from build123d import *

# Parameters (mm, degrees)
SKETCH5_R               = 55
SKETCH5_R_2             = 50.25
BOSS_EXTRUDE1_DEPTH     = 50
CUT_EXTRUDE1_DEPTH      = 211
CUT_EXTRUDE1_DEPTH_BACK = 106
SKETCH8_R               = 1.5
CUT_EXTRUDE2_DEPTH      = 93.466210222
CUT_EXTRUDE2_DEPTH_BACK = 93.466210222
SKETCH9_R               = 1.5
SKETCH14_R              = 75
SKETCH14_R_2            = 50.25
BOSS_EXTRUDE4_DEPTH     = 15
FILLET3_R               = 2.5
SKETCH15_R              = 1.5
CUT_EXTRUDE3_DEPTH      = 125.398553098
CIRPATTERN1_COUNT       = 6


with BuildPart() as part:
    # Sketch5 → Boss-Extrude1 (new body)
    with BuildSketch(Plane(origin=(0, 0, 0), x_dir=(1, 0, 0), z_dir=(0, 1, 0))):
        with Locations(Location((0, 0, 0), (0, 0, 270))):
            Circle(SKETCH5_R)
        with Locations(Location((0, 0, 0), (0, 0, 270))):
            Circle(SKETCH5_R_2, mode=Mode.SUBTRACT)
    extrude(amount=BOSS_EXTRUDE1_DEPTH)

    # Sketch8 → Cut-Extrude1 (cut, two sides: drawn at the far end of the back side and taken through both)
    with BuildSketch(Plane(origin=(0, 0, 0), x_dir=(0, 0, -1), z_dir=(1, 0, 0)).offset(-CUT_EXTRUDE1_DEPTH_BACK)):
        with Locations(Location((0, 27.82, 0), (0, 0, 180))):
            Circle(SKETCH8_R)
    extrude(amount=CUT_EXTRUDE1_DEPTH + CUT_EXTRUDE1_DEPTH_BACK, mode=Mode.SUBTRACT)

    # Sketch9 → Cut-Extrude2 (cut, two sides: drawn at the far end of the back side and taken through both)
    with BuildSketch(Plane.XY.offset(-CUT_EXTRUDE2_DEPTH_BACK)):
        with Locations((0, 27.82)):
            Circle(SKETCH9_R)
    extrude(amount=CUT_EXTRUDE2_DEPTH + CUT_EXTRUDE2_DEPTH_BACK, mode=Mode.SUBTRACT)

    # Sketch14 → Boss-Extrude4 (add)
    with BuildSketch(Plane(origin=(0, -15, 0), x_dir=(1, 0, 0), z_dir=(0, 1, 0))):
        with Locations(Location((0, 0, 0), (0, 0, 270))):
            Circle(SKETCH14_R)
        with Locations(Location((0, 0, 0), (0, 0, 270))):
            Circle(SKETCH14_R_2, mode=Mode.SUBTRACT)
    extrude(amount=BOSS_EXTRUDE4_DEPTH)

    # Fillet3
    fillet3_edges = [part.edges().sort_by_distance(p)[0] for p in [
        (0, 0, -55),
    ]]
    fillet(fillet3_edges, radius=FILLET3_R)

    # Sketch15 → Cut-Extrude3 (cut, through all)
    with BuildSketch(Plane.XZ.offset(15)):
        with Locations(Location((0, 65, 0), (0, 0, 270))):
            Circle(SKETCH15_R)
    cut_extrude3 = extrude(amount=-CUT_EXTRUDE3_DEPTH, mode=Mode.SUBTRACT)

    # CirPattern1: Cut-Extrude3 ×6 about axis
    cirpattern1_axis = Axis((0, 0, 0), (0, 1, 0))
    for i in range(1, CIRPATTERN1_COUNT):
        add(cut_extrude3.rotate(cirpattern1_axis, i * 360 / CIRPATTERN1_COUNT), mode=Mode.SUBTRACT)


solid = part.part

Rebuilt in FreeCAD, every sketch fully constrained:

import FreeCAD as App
import Part
import Sketcher

V = App.Vector
Q = App.Units.Quantity


def edges_at(feature, points):
    """Names of the edges that pass closest to the given points."""
    edges = feature.Shape.Edges
    near = lambda p: min(range(len(edges)), key=lambda i: edges[i].distToShape(Part.Vertex(*p))[0])
    return sorted({f"Edge{near(p) + 1}" for p in points})

doc = App.newDocument("Part")
params = doc.addObject("Spreadsheet::Sheet", "Params")
for row, (alias, value) in enumerate([
    ("sketch1_diameter", "110 mm"),
    ("sketch1_diameter2", "100.5 mm"),
    ("pad1_length", "50 mm"),
    ("sketch2_diameter", "3 mm"),
    ("sketch3_diameter", "3 mm"),
    ("sketch4_diameter", "150 mm"),
    ("sketch4_diameter2", "100.5 mm"),
    ("pad2_length", "15 mm"),
    ("fillet_radius", "2.5 mm"),
    ("sketch5_diameter", "3 mm"),
], start=1):
    params.set(f"A{row}", alias)
    params.set(f"B{row}", "=" + value)
    params.setAlias(f"B{row}", alias)

body = doc.addObject("PartDesign::Body", "Body")

# Sketch on XZ plane
sketch1 = body.newObject("Sketcher::SketchObject", "Sketch")
sketch1.AttachmentSupport = (doc.getObject("XZ_Plane"), [""])
sketch1.MapMode = "FlatFace"
sketch1.addGeometry(Part.Circle(V(0, 0, 0), V(0, 0, 1), 55), False)
sketch1.addGeometry(Part.Circle(V(0, 0, 0), V(0, 0, 1), 50), False)
sketch1.addConstraint(Sketcher.Constraint("Coincident", 0, 3, -1, 1))
sketch1.addConstraint(Sketcher.Constraint("Coincident", 1, 3, -1, 1))
sketch1.addConstraint(Sketcher.Constraint("Diameter", 0, Q("110 mm")))
sketch1.addConstraint(Sketcher.Constraint("Diameter", 1, Q("100.5 mm")))
sketch1.setExpression("Constraints[2]", "Params.sketch1_diameter")
sketch1.setExpression("Constraints[3]", "Params.sketch1_diameter2")
pad1 = body.newObject("PartDesign::Pad", "Pad")
pad1.Profile = sketch1
pad1.setExpression("Length", "Params.pad1_length")
pad1.Reversed = True

# Sketch on YZ plane
sketch2 = body.newObject("Sketcher::SketchObject", "Sketch001")
sketch2.AttachmentSupport = (doc.getObject("YZ_Plane"), [""])
sketch2.MapMode = "FlatFace"
sketch2.addGeometry(Part.Circle(V(27.8, 0, 0), V(0, 0, 1), 1.5), False)
sketch2.addConstraint(Sketcher.Constraint("PointOnObject", 0, 3, -1))
sketch2.addConstraint(Sketcher.Constraint("Diameter", 0, Q("3 mm")))
sketch2.addConstraint(Sketcher.Constraint("DistanceX", -1, 1, 0, 3, Q("27.82 mm")))
sketch2.setExpression("Constraints[1]", "Params.sketch2_diameter")
pocket1 = body.newObject("PartDesign::Pocket", "Pocket")
pocket1.Profile = sketch2
pocket1.Type = "ThroughAll"
pocket1.Midplane = True

# Sketch on XY plane
sketch3 = body.newObject("Sketcher::SketchObject", "Sketch002")
sketch3.AttachmentSupport = (doc.getObject("XY_Plane"), [""])
sketch3.MapMode = "FlatFace"
sketch3.addGeometry(Part.Circle(V(0, 27.8, 0), V(0, 0, 1), 1.5), False)
sketch3.addConstraint(Sketcher.Constraint("PointOnObject", 0, 3, -2))
sketch3.addConstraint(Sketcher.Constraint("Diameter", 0, Q("3 mm")))
sketch3.addConstraint(Sketcher.Constraint("DistanceY", -1, 1, 0, 3, Q("27.82 mm")))
sketch3.setExpression("Constraints[1]", "Params.sketch3_diameter")
pocket2 = body.newObject("PartDesign::Pocket", "Pocket001")
pocket2.Profile = sketch3
pocket2.Type = "ThroughAll"
pocket2.Midplane = True

# Sketch on XZ plane
sketch4 = body.newObject("Sketcher::SketchObject", "Sketch003")
sketch4.AttachmentSupport = (doc.getObject("XZ_Plane"), [""])
sketch4.MapMode = "FlatFace"
sketch4.AttachmentOffset = App.Placement(V(0, 0, 15), App.Rotation())
sketch4.addGeometry(Part.Circle(V(0, 0, 0), V(0, 0, 1), 75), False)
sketch4.addGeometry(Part.Circle(V(0, 0, 0), V(0, 0, 1), 50), False)
sketch4.addConstraint(Sketcher.Constraint("Coincident", 0, 3, -1, 1))
sketch4.addConstraint(Sketcher.Constraint("Coincident", 1, 3, -1, 1))
sketch4.addConstraint(Sketcher.Constraint("Diameter", 0, Q("150 mm")))
sketch4.addConstraint(Sketcher.Constraint("Diameter", 1, Q("100.5 mm")))
sketch4.setExpression("Constraints[2]", "Params.sketch4_diameter")
sketch4.setExpression("Constraints[3]", "Params.sketch4_diameter2")
pad2 = body.newObject("PartDesign::Pad", "Pad001")
pad2.Profile = sketch4
pad2.setExpression("Length", "Params.pad2_length")
pad2.Reversed = True
doc.recompute()

fillet = body.newObject("PartDesign::Fillet", "Fillet")
fillet.Base = (pad2, edges_at(pad2, [(0, 0, -55)]))
fillet.setExpression("Radius", "Params.fillet_radius")

# Sketch on XZ plane
sketch5 = body.newObject("Sketcher::SketchObject", "Sketch004")
sketch5.AttachmentSupport = (doc.getObject("XZ_Plane"), [""])
sketch5.MapMode = "FlatFace"
sketch5.AttachmentOffset = App.Placement(V(0, 0, 15), App.Rotation())
sketch5.addGeometry(Part.Circle(V(0, 65, 0), V(0, 0, 1), 1.5), False)
sketch5.addConstraint(Sketcher.Constraint("PointOnObject", 0, 3, -2))
sketch5.addConstraint(Sketcher.Constraint("Diameter", 0, Q("3 mm")))
sketch5.addConstraint(Sketcher.Constraint("DistanceY", -1, 1, 0, 3, Q("65 mm")))
sketch5.setExpression("Constraints[1]", "Params.sketch5_diameter")
pocket3 = body.newObject("PartDesign::Pocket", "Pocket002")
pocket3.Profile = sketch5
pocket3.Type = "ThroughAll"
doc.recompute()

polarpattern = body.newObject("PartDesign::PolarPattern", "PolarPattern")
polarpattern.Originals = [pocket3]
polarpattern.Axis = (doc.getObject("Y_Axis"), [""])
polarpattern.Angle = 360
polarpattern.Occurrences = 6
body.Tip = polarpattern

doc.recompute()
